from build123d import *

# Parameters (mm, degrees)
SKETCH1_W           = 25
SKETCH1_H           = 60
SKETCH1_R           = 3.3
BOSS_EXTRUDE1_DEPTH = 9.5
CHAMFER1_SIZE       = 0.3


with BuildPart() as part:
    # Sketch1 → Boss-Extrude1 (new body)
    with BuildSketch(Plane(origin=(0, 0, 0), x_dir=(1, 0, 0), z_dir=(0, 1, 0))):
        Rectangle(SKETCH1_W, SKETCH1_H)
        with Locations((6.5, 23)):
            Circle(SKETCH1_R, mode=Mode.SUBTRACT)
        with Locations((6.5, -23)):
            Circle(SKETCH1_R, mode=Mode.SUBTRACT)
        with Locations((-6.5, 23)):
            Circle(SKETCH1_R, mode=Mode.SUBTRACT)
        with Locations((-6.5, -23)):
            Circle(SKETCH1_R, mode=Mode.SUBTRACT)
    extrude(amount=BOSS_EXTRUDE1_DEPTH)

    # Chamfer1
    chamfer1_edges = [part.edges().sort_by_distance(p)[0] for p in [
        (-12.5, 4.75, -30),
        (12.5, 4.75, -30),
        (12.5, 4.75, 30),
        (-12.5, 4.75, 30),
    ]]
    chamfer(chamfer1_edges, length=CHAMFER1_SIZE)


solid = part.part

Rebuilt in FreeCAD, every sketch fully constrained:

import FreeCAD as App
import Part
import Sketcher
Q = App.Units.Quantity


def edges_at(feature, points):
    """Names of the edges that pass closest to the given points."""
    edges = feature.Shape.Edges
    near = lambda p: min(range(len(edges)), key=lambda i: edges[i].distToShape(Part.Vertex(*p))[0])
    return sorted({f"Edge{near(p) + 1}" for p in points})

doc = App.newDocument("Part")
body = doc.addObject("PartDesign::Body", "Body")

# Sketch on XZ plane
sketch1 = body.newObject("Sketcher::SketchObject", "Sketch")
sketch1.AttachmentSupport = (doc.getObject("XZ_Plane"), [""])
sketch1.MapMode = "FlatFace"
sketch1.addGeometry([
    Part.LineSegment(App.Vector(-12.5, -30, 0), App.Vector(-12.5, 30, 0)),  # 0
    Part.LineSegment(App.Vector(-12.5, 30, 0), App.Vector(12.5, 30, 0)),  # 1
    Part.LineSegment(App.Vector(12.5, 30, 0), App.Vector(12.5, -30, 0)),  # 2
    Part.LineSegment(App.Vector(12.5, -30, 0), App.Vector(-12.5, -30, 0)),  # 3
    Part.Circle(App.Vector(-6.5, 23, 0), App.Vector(0, 0, 1), 3.3),  # 4
    Part.Circle(App.Vector(6.5, 23, 0), App.Vector(0, 0, 1), 3.3),  # 5
    Part.Circle(App.Vector(-6.5, -23, 0), App.Vector(0, 0, 1), 3.3),  # 6
    Part.Circle(App.Vector(6.5, -23, 0), App.Vector(0, 0, 1), 3.3),  # 7
], False)
sketch1.addConstraint([
    Sketcher.Constraint("Coincident", 0, 2, 1, 1),
    Sketcher.Constraint("Coincident", 1, 2, 2, 1),
    Sketcher.Constraint("Coincident", 2, 2, 3, 1),
    Sketcher.Constraint("Coincident", 3, 2, 0, 1),
    Sketcher.Constraint("Vertical", 0),
    Sketcher.Constraint("Horizontal", 1),
    Sketcher.Constraint("Vertical", 2),
    Sketcher.Constraint("Horizontal", 3),
    Sketcher.Constraint("Equal", 4, 5),
    Sketcher.Constraint("Equal", 5, 6),
    Sketcher.Constraint("Equal", 6, 7),
    Sketcher.Constraint("Symmetric", 5, 3, 6, 3, -1, 1),
    Sketcher.Constraint("Symmetric", 4, 3, 7, 3, -1, 1),
    Sketcher.Constraint("Symmetric", 0, 2, 2, 2, -1, 1),
    Sketcher.Constraint("Symmetric", 4, 3, 5, 3, -2),
    Sketcher.Constraint("Diameter", 4, Q("6.6 mm")),
    Sketcher.Constraint("DistanceX", 1, 1, 1, 2, Q("25 mm")),
    Sketcher.Constraint("DistanceY", 0, 1, 0, 2, Q("60 mm")),
    Sketcher.Constraint("DistanceY", -1, 1, 4, 3, Q("23 mm")),
    Sketcher.Constraint("DistanceX", 4, 3, 5, 3, Q("13 mm")),
])
pad1 = body.newObject("PartDesign::Pad", "Pad")
pad1.Profile = sketch1
pad1.Length = 9.5
pad1.Reversed = True
doc.recompute()

chamfer = body.newObject("PartDesign::Chamfer", "Chamfer")
chamfer.Base = (pad1, edges_at(pad1, [
    (-12.5, 4.75, -30),
    (12.5, 4.75, -30),
    (12.5, 4.75, 30),
    (-12.5, 4.75, 30),
]))
chamfer.Size = 0.3

doc.recompute()
